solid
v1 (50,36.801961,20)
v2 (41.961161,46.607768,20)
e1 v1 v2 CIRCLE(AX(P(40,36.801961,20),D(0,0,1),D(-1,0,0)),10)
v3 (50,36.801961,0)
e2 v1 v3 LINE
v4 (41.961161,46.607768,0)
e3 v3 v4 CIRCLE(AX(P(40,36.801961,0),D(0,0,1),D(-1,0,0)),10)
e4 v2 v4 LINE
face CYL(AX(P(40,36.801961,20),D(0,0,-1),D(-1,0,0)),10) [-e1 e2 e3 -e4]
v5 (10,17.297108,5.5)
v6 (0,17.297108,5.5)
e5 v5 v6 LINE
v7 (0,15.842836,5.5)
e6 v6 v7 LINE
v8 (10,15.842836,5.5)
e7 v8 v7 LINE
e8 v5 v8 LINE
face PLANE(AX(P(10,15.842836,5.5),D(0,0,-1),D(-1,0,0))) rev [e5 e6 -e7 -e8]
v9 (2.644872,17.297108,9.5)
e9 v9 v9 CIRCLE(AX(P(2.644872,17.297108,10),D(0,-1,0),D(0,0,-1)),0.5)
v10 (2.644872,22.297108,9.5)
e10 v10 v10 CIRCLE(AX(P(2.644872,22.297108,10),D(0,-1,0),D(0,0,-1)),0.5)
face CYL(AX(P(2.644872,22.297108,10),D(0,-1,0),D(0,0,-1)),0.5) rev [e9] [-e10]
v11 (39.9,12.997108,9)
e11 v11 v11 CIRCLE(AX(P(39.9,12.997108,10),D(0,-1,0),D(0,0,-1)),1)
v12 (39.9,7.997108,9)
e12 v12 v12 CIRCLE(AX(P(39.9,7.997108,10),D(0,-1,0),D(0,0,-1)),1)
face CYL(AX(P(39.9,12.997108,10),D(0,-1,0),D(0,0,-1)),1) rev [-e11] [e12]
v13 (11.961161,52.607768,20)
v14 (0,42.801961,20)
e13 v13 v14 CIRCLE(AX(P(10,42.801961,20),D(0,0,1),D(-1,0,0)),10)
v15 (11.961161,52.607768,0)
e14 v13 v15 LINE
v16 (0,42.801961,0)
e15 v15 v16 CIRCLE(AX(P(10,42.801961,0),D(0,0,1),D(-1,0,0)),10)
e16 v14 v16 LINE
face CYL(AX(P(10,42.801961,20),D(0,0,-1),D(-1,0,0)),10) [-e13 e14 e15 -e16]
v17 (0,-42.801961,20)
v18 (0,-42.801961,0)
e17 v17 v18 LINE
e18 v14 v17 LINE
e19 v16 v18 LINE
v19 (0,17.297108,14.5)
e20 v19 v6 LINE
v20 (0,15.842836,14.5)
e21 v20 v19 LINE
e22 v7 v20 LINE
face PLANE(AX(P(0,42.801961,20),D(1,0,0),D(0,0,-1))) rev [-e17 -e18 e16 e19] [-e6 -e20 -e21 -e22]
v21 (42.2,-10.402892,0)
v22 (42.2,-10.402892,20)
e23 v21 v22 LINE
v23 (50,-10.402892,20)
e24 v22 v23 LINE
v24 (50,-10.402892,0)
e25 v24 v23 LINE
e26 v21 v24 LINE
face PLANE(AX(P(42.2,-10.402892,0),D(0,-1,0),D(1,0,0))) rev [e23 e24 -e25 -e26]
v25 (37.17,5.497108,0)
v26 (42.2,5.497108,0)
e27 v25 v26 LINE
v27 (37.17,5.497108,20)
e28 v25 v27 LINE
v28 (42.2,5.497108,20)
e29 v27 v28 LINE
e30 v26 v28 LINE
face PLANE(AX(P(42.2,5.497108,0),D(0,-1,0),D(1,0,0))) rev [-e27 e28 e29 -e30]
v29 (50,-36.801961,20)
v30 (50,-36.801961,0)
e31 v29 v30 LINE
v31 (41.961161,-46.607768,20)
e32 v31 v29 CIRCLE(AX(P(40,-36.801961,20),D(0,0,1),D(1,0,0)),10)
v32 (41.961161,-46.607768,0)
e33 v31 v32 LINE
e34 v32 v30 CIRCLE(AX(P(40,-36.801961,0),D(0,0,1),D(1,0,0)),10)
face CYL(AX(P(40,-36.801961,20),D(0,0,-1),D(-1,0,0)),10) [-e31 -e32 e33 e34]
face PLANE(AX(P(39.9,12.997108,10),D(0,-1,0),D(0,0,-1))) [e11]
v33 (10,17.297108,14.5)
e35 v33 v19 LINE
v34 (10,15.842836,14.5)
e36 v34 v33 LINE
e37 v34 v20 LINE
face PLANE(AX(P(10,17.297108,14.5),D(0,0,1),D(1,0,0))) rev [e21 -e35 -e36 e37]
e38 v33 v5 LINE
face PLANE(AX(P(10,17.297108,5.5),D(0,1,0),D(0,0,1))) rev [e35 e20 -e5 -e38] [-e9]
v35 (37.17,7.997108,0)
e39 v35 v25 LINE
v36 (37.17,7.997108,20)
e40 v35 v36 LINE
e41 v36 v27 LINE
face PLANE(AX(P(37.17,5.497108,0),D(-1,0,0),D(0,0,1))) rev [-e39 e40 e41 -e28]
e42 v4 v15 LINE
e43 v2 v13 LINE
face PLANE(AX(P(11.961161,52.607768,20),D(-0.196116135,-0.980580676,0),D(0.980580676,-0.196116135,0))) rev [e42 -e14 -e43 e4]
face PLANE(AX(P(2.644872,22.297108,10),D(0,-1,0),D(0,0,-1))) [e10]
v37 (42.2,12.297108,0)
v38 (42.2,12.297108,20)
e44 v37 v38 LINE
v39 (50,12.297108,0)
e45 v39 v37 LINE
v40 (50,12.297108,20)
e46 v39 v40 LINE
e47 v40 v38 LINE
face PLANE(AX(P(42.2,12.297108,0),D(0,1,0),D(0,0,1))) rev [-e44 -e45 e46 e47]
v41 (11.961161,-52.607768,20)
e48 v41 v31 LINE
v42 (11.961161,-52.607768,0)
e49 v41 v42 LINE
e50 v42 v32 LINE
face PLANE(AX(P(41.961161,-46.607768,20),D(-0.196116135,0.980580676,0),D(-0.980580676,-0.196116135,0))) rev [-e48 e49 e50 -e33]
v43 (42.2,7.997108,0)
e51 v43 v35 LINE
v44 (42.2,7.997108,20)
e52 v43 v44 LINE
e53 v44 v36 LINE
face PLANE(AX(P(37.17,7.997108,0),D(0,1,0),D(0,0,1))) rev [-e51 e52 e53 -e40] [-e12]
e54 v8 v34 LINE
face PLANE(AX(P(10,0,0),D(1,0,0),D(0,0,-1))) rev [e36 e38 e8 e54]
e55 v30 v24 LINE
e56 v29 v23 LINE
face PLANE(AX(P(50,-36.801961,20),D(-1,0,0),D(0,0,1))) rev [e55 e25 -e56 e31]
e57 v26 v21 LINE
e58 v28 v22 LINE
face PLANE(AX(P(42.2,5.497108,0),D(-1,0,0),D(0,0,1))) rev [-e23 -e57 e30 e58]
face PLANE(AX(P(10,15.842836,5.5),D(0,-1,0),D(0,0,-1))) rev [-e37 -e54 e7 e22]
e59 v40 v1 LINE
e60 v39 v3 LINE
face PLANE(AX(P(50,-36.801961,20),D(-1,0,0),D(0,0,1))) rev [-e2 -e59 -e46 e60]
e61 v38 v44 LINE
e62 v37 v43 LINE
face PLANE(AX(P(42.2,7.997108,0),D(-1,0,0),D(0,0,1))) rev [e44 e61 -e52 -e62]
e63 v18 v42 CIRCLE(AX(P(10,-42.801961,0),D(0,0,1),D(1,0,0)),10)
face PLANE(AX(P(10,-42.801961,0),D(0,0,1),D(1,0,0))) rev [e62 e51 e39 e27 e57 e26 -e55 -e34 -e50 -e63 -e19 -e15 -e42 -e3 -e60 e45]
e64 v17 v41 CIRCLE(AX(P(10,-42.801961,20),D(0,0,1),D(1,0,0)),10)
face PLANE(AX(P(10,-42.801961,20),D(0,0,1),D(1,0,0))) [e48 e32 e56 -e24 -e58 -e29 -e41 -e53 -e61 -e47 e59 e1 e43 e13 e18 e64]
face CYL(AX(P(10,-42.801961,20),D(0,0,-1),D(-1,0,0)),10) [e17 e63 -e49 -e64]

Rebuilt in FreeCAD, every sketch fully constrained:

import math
import FreeCAD as App
import Part
import Sketcher

doc = App.newDocument("Part")
params = doc.addObject("Spreadsheet::Sheet", "Params")
for row, (alias, value) in enumerate([
    ("sketch1_radius", "10 mm"),
    ("pad1_length", "20 mm"),
    ("sketch2_height", "9 mm"),
    ("pocket1_length", "10 mm"),
    ("sketch3_diameter", "1 mm"),
    ("pocket2_length", "5 mm"),
    ("sketch4_width", "7.8 mm"),
    ("sketch4_height", "15.9 mm"),
    ("sketch4_height2", "22.7 mm"),
    ("sketch4_height3", "4.3 mm"),
    ("sketch4_width2", "5.03 mm"),
    ("sketch5_diameter", "2 mm"),
    ("pocket4_length", "5 mm"),
], start=1):
    params.set(f"A{row}", alias)
    params.set(f"B{row}", "=" + value)
    params.setAlias(f"B{row}", alias)

body = doc.addObject("PartDesign::Body", "Body")

# Sketch on XY plane
sketch1 = doc.addObject("Sketcher::SketchObject", "Sketch")
body.addObject(sketch1)
sketch1.AttachmentSupport = (doc.XY_Plane, [""])
sketch1.MapMode = "FlatFace"
sketch1.addGeometry(Part.LineSegment(App.Vector(0, 43, 0), App.Vector(0, -43, 0)), False)
sketch1.addGeometry(Part.ArcOfCircle(Part.Circle(App.Vector(10, -43, 0), App.Vector(0, 0, 1), 10), math.radians(-180), math.radians(-79)), False)
sketch1.addGeometry(Part.LineSegment(App.Vector(12, -53, 0), App.Vector(42, -47, 0)), False)
sketch1.addGeometry(Part.ArcOfCircle(Part.Circle(App.Vector(40, -37, 0), App.Vector(0, 0, 1), 10), math.radians(-79), math.radians(0)), False)
sketch1.addGeometry(Part.LineSegment(App.Vector(50, -37, 0), App.Vector(50, 37, 0)), False)
sketch1.addGeometry(Part.ArcOfCircle(Part.Circle(App.Vector(40, 37, 0), App.Vector(0, 0, 1), 10), math.radians(0), math.radians(79)), False)
sketch1.addGeometry(Part.LineSegment(App.Vector(42, 47, 0), App.Vector(12, 53, 0)), False)
sketch1.addGeometry(Part.ArcOfCircle(Part.Circle(App.Vector(10, 43, 0), App.Vector(0, 0, 1), 10), math.radians(79), math.radians(180)), False)
sketch1.addConstraint(Sketcher.Constraint("Tangent", 0, 2, 1, 1))
sketch1.addConstraint(Sketcher.Constraint("Tangent", 1, 2, 2, 1))
sketch1.addConstraint(Sketcher.Constraint("Tangent", 2, 2, 3, 1))
sketch1.addConstraint(Sketcher.Constraint("Tangent", 3, 2, 4, 1))
sketch1.addConstraint(Sketcher.Constraint("Tangent", 4, 2, 5, 1))
sketch1.addConstraint(Sketcher.Constraint("Tangent", 5, 2, 6, 1))
sketch1.addConstraint(Sketcher.Constraint("Tangent", 6, 2, 7, 1))
sketch1.addConstraint(Sketcher.Constraint("Tangent", 7, 2, 0, 1))
sketch1.addConstraint(Sketcher.Constraint("Vertical", 0))
sketch1.addConstraint(Sketcher.Constraint("Vertical", 4))
sketch1.addConstraint(Sketcher.Constraint("Equal", 1, 3))
sketch1.addConstraint(Sketcher.Constraint("Equal", 3, 5))
sketch1.addConstraint(Sketcher.Constraint("Equal", 5, 7))
sketch1.addConstraint(Sketcher.Constraint("Symmetric", 0, 2, 7, 2, -1, 1))
sketch1.addConstraint(Sketcher.Constraint("Vertical", 2, 2, 5, 2))
sketch1.addConstraint(Sketcher.Constraint("Radius", 1, 10.0))
sketch1.addConstraint(Sketcher.Constraint("DistanceX", -1, 1, 3, 3, 40.0))
sketch1.addConstraint(Sketcher.Constraint("DistanceY", 1, 3, 3, 3, 6.0))
sketch1.addConstraint(Sketcher.Constraint("DistanceY", 0, 2, 0, 1, 85.603922))
sketch1.setExpression("Constraints[15]", "Params.sketch1_radius")
pad1 = doc.addObject("PartDesign::Pad", "Pad")
body.addObject(pad1)
pad1.Profile = sketch1
pad1.setExpression("Length", "Params.pad1_length")

# Sketch on YZ plane
sketch2 = doc.addObject("Sketcher::SketchObject", "Sketch001")
body.addObject(sketch2)
sketch2.AttachmentSupport = (doc.YZ_Plane, [""])
sketch2.MapMode = "FlatFace"
sketch2.addGeometry(Part.LineSegment(App.Vector(17.3, 5.5, 0), App.Vector(15.8, 5.5, 0)), False)
sketch2.addGeometry(Part.LineSegment(App.Vector(15.8, 5.5, 0), App.Vector(15.8, 14.5, 0)), False)
sketch2.addGeometry(Part.LineSegment(App.Vector(15.8, 14.5, 0), App.Vector(17.3, 14.5, 0)), False)
sketch2.addGeometry(Part.LineSegment(App.Vector(17.3, 14.5, 0), App.Vector(17.3, 5.5, 0)), False)
sketch2.addConstraint(Sketcher.Constraint("Coincident", 0, 2, 1, 1))
sketch2.addConstraint(Sketcher.Constraint("Coincident", 1, 2, 2, 1))
sketch2.addConstraint(Sketcher.Constraint("Coincident", 2, 2, 3, 1))
sketch2.addConstraint(Sketcher.Constraint("Coincident", 3, 2, 0, 1))
sketch2.addConstraint(Sketcher.Constraint("Horizontal", 0))
sketch2.addConstraint(Sketcher.Constraint("Vertical", 1))
sketch2.addConstraint(Sketcher.Constraint("Horizontal", 2))
sketch2.addConstraint(Sketcher.Constraint("Vertical", 3))
sketch2.addConstraint(Sketcher.Constraint("DistanceY", 1, 1, 1, 2, 9.0))
sketch2.addConstraint(Sketcher.Constraint("DistanceY", -1, 1, 0, 2, 5.5))
sketch2.addConstraint(Sketcher.Constraint("DistanceX", 0, 2, 0, 1, 1.454272))
sketch2.addConstraint(Sketcher.Constraint("DistanceX", -1, 1, 2, 2, 17.297108))
sketch2.setExpression("Constraints[8]", "Params.sketch2_height")
pocket1 = doc.addObject("PartDesign::Pocket", "Pocket")
body.addObject(pocket1)
pocket1.Profile = sketch2
pocket1.setExpression("Length", "Params.pocket1_length")
pocket1.Reversed = True

# Sketch on XZ plane
sketch3 = doc.addObject("Sketcher::SketchObject", "Sketch002")
body.addObject(sketch3)
sketch3.AttachmentSupport = (doc.XZ_Plane, [""])
sketch3.MapMode = "FlatFace"
sketch3.AttachmentOffset = App.Placement(App.Vector(0, 0, -17.297108), App.Rotation())
sketch3.addGeometry(Part.Circle(App.Vector(2.6, 10, 0), App.Vector(0, 0, 1), 0.5), False)
sketch3.addConstraint(Sketcher.Constraint("Diameter", 0, 1.0))
sketch3.addConstraint(Sketcher.Constraint("DistanceY", -1, 1, 0, 3, 10.0))
sketch3.addConstraint(Sketcher.Constraint("DistanceX", -1, 1, 0, 3, 2.644872))
sketch3.setExpression("Constraints[0]", "Params.sketch3_diameter")
pocket2 = doc.addObject("PartDesign::Pocket", "Pocket001")
body.addObject(pocket2)
pocket2.Profile = sketch3
pocket2.setExpression("Length", "Params.pocket2_length")

# Sketch on XY plane
sketch4 = doc.addObject("Sketcher::SketchObject", "Sketch003")
body.addObject(sketch4)
sketch4.AttachmentSupport = (doc.XY_Plane, [""])
sketch4.MapMode = "FlatFace"
sketch4.AttachmentOffset = App.Placement(App.Vector(0, 0, 20), App.Rotation())
sketch4.addGeometry(Part.LineSegment(App.Vector(42.2, 5.5, 0), App.Vector(42.2, -10.4, 0)), False)
sketch4.addGeometry(Part.LineSegment(App.Vector(42.2, -10.4, 0), App.Vector(50, -10.4, 0)), False)
sketch4.addGeometry(Part.LineSegment(App.Vector(50, -10.4, 0), App.Vector(50, 12.3, 0)), False)
sketch4.addGeometry(Part.LineSegment(App.Vector(50, 12.3, 0), App.Vector(42.2, 12.3, 0)), False)
sketch4.addGeometry(Part.LineSegment(App.Vector(42.2, 12.3, 0), App.Vector(42.2, 8, 0)), False)
sketch4.addGeometry(Part.LineSegment(App.Vector(42.2, 8, 0), App.Vector(37.2, 8, 0)), False)
sketch4.addGeometry(Part.LineSegment(App.Vector(37.2, 8, 0), App.Vector(37.2, 5.5, 0)), False)
sketch4.addGeometry(Part.LineSegment(App.Vector(37.2, 5.5, 0), App.Vector(42.2, 5.5, 0)), False)
sketch4.addConstraint(Sketcher.Constraint("Coincident", 0, 2, 1, 1))
sketch4.addConstraint(Sketcher.Constraint("Coincident", 1, 2, 2, 1))
sketch4.addConstraint(Sketcher.Constraint("Coincident", 2, 2, 3, 1))
sketch4.addConstraint(Sketcher.Constraint("Coincident", 3, 2, 4, 1))
sketch4.addConstraint(Sketcher.Constraint("Coincident", 4, 2, 5, 1))
sketch4.addConstraint(Sketcher.Constraint("Coincident", 5, 2, 6, 1))
sketch4.addConstraint(Sketcher.Constraint("Coincident", 6, 2, 7, 1))
sketch4.addConstraint(Sketcher.Constraint("Coincident", 7, 2, 0, 1))
sketch4.addConstraint(Sketcher.Constraint("Vertical", 0))
sketch4.addConstraint(Sketcher.Constraint("Horizontal", 1))
sketch4.addConstraint(Sketcher.Constraint("Vertical", 2))
sketch4.addConstraint(Sketcher.Constraint("Horizontal", 3))
sketch4.addConstraint(Sketcher.Constraint("Vertical", 4))
sketch4.addConstraint(Sketcher.Constraint("Horizontal", 5))
sketch4.addConstraint(Sketcher.Constraint("Vertical", 6))
sketch4.addConstraint(Sketcher.Constraint("Horizontal", 7))
sketch4.addConstraint(Sketcher.Constraint("Vertical", 0, 2, 3, 2))
sketch4.addConstraint(Sketcher.Constraint("DistanceX", 1, 1, 1, 2, 7.8))
sketch4.addConstraint(Sketcher.Constraint("DistanceY", 0, 2, 0, 1, 15.9))
sketch4.addConstraint(Sketcher.Constraint("DistanceY", 2, 1, 2, 2, 22.7))
sketch4.addConstraint(Sketcher.Constraint("DistanceY", 4, 2, 4, 1, 4.3))
sketch4.addConstraint(Sketcher.Constraint("DistanceX", -1, 1, 1, 2, 50.0))
sketch4.addConstraint(Sketcher.Constraint("DistanceX", 5, 2, 5, 1, 5.03))
sketch4.addConstraint(Sketcher.Constraint("DistanceY", 0, 2, -1, 1, 10.402892))
sketch4.setExpression("Constraints[17]", "Params.sketch4_width")
sketch4.setExpression("Constraints[18]", "Params.sketch4_height")
sketch4.setExpression("Constraints[19]", "Params.sketch4_height2")
sketch4.setExpression("Constraints[20]", "Params.sketch4_height3")
sketch4.setExpression("Constraints[22]", "Params.sketch4_width2")
pocket3 = doc.addObject("PartDesign::Pocket", "Pocket002")
body.addObject(pocket3)
pocket3.Profile = sketch4
pocket3.Type = "ThroughAll"

# Sketch on XZ plane
sketch5 = doc.addObject("Sketcher::SketchObject", "Sketch004")
body.addObject(sketch5)
sketch5.AttachmentSupport = (doc.XZ_Plane, [""])
sketch5.MapMode = "FlatFace"
sketch5.AttachmentOffset = App.Placement(App.Vector(0, 0, -7.997108), App.Rotation())
sketch5.addGeometry(Part.Circle(App.Vector(39.9, 10, 0), App.Vector(0, 0, 1), 1), False)
sketch5.addConstraint(Sketcher.Constraint("Diameter", 0, 2.0))
sketch5.addConstraint(Sketcher.Constraint("DistanceY", -1, 1, 0, 3, 10.0))
sketch5.addConstraint(Sketcher.Constraint("DistanceX", -1, 1, 0, 3, 39.9))
sketch5.setExpression("Constraints[0]", "Params.sketch5_diameter")
pocket4 = doc.addObject("PartDesign::Pocket", "Pocket003")
body.addObject(pocket4)
pocket4.Profile = sketch5
pocket4.setExpression("Length", "Params.pocket4_length")

doc.recompute()
